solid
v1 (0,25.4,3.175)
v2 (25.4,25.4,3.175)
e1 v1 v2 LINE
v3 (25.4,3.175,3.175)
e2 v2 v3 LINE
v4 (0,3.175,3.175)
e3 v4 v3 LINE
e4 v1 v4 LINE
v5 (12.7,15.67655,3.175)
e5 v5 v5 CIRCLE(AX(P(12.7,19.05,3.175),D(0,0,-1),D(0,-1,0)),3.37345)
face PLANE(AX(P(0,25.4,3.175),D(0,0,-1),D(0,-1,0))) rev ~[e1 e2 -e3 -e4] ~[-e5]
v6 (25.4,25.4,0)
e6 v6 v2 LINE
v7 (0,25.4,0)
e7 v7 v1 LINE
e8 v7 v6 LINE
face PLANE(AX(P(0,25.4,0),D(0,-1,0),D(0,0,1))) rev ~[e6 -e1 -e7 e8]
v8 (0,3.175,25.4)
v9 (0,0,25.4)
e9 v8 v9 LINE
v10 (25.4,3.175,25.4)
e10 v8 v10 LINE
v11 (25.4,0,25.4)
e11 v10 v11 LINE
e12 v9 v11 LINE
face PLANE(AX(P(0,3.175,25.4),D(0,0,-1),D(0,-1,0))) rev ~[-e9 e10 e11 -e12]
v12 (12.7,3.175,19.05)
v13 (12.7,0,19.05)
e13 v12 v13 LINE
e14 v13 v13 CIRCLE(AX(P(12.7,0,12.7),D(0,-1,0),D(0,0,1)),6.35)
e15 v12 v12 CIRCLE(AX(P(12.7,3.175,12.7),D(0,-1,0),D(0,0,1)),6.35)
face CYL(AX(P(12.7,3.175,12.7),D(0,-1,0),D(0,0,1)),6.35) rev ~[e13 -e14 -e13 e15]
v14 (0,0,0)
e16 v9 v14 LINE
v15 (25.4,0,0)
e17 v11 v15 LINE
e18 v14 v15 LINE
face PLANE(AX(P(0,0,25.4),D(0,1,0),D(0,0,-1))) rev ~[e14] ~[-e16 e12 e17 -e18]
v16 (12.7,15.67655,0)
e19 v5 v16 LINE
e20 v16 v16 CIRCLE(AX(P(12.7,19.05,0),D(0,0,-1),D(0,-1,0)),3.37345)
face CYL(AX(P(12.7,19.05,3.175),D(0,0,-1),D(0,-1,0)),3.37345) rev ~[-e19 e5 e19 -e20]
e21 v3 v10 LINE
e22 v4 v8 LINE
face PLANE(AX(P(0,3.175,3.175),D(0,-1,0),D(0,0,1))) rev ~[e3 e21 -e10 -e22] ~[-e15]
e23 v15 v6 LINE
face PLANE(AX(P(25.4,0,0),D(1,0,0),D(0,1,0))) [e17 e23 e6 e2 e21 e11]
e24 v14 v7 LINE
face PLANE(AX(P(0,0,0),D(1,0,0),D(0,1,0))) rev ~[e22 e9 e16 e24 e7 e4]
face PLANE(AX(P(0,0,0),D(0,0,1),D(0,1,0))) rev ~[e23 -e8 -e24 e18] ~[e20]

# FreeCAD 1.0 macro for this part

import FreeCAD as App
import Part
import Sketcher
Q = App.Units.Quantity

doc = App.newDocument("Part")
params = doc.addObject("Spreadsheet::Sheet", "Params")
for row, (alias, value) in enumerate([
    ("sketch1_width", "1 in"),
    ("sketch1_width2", "0.125 in"),
    ("pad1_length", "1 in"),
    ("sketch2_diameter", "0.2656299 in"),
    ("hole_diameter", "0.265626 in"),
    ("sketch3_diameter", "0.5 in"),
    ("hole2_diameter", "0.5 in"),
], start=1):
    params.set(f"A{row}", alias)
    params.set(f"B{row}", "=" + value)
    params.setAlias(f"B{row}", alias)

body = doc.addObject("PartDesign::Body", "Body")

# Sketch on YZ plane
sketch1 = body.newObject("Sketcher::SketchObject", "Sketch")
sketch1.AttachmentSupport = (doc.getObject("YZ_Plane"), [""])
sketch1.MapMode = "FlatFace"
sketch1.addGeometry(Part.LineSegment(App.Vector(0, 25.4, 0), App.Vector(0, 0, 0)), False)
sketch1.addGeometry(Part.LineSegment(App.Vector(0, 0, 0), App.Vector(25.4, 0, 0)), False)
sketch1.addGeometry(Part.LineSegment(App.Vector(25.4, 0, 0), App.Vector(25.4, 3.2, 0)), False)
sketch1.addGeometry(Part.LineSegment(App.Vector(25.4, 3.2, 0), App.Vector(3.2, 3.2, 0)), False)
sketch1.addGeometry(Part.LineSegment(App.Vector(3.2, 3.2, 0), App.Vector(3.2, 25.4, 0)), False)
sketch1.addGeometry(Part.LineSegment(App.Vector(3.2, 25.4, 0), App.Vector(0, 25.4, 0)), False)
sketch1.addConstraint(Sketcher.Constraint("Coincident", 0, 2, 1, 1))
sketch1.addConstraint(Sketcher.Constraint("Coincident", 1, 2, 2, 1))
sketch1.addConstraint(Sketcher.Constraint("Coincident", 2, 2, 3, 1))
sketch1.addConstraint(Sketcher.Constraint("Coincident", 3, 2, 4, 1))
sketch1.addConstraint(Sketcher.Constraint("Coincident", 4, 2, 5, 1))
sketch1.addConstraint(Sketcher.Constraint("Coincident", 5, 2, 0, 1))
sketch1.addConstraint(Sketcher.Constraint("Vertical", 0))
sketch1.addConstraint(Sketcher.Constraint("Horizontal", 1))
sketch1.addConstraint(Sketcher.Constraint("Vertical", 2))
sketch1.addConstraint(Sketcher.Constraint("Horizontal", 3))
sketch1.addConstraint(Sketcher.Constraint("Vertical", 4))
sketch1.addConstraint(Sketcher.Constraint("Horizontal", 5))
sketch1.addConstraint(Sketcher.Constraint("Coincident", 0, 2, -1, 1))
sketch1.addConstraint(Sketcher.Constraint("Equal", 1, 0))
sketch1.addConstraint(Sketcher.Constraint("Equal", 5, 2))
sketch1.addConstraint(Sketcher.Constraint("DistanceX", 1, 1, 1, 2, Q("1 in")))
sketch1.addConstraint(Sketcher.Constraint("DistanceX", 5, 2, 5, 1, Q("0.125 in")))
sketch1.setExpression("Constraints[15]", "Params.sketch1_width")
sketch1.setExpression("Constraints[16]", "Params.sketch1_width2")
pad1 = body.newObject("PartDesign::Pad", "Pad")
pad1.Profile = sketch1
pad1.setExpression("Length", "Params.pad1_length")

# Sketch on XY plane
sketch2 = body.newObject("Sketcher::SketchObject", "Sketch001")
sketch2.AttachmentSupport = (doc.getObject("XY_Plane"), [""])
sketch2.MapMode = "FlatFace"
sketch2.AttachmentOffset = App.Placement(App.Vector(0, 0, 0.125 * 25.4), App.Rotation())
sketch2.addGeometry(Part.Circle(App.Vector(12.7, 19.1, 0), App.Vector(0, 0, 1), 3.4), False)
sketch2.addConstraint(Sketcher.Constraint("Diameter", 0, Q("0.2656299 in")))
sketch2.addConstraint(Sketcher.Constraint("DistanceX", -1, 1, 0, 3, Q("0.5 in")))
sketch2.addConstraint(Sketcher.Constraint("DistanceY", -1, 1, 0, 3, Q("0.75 in")))
sketch2.setExpression("Constraints[0]", "Params.sketch2_diameter")
doc.recompute()
hole = body.newObject("PartDesign::Hole", "Hole")
hole.Profile = sketch2
hole.ThreadType = "None"
hole.setExpression("Diameter", "Params.hole_diameter")
hole.DepthType = "ThroughAll"

# Sketch on XZ plane
sketch3 = body.newObject("Sketcher::SketchObject", "Sketch002")
sketch3.AttachmentSupport = (doc.getObject("XZ_Plane"), [""])
sketch3.MapMode = "FlatFace"
sketch3.AttachmentOffset = App.Placement(App.Vector(0, 0, -0.125 * 25.4), App.Rotation())
sketch3.addGeometry(Part.Circle(App.Vector(13, 13, 0), App.Vector(0, 0, 1), 6), False)
sketch3.addConstraint(Sketcher.Constraint("Diameter", 0, Q("0.5 in")))
sketch3.addConstraint(Sketcher.Constraint("DistanceX", -1, 1, 0, 3, Q("0.5 in")))
sketch3.addConstraint(Sketcher.Constraint("DistanceY", -1, 1, 0, 3, Q("0.5 in")))
sketch3.setExpression("Constraints[0]", "Params.sketch3_diameter")
doc.recompute()
hole2 = body.newObject("PartDesign::Hole", "Hole001")
hole2.Profile = sketch3
hole2.ThreadType = "None"
hole2.setExpression("Diameter", "Params.hole2_diameter")
hole2.DepthType = "ThroughAll"
hole2.Reversed = True

doc.recompute()
